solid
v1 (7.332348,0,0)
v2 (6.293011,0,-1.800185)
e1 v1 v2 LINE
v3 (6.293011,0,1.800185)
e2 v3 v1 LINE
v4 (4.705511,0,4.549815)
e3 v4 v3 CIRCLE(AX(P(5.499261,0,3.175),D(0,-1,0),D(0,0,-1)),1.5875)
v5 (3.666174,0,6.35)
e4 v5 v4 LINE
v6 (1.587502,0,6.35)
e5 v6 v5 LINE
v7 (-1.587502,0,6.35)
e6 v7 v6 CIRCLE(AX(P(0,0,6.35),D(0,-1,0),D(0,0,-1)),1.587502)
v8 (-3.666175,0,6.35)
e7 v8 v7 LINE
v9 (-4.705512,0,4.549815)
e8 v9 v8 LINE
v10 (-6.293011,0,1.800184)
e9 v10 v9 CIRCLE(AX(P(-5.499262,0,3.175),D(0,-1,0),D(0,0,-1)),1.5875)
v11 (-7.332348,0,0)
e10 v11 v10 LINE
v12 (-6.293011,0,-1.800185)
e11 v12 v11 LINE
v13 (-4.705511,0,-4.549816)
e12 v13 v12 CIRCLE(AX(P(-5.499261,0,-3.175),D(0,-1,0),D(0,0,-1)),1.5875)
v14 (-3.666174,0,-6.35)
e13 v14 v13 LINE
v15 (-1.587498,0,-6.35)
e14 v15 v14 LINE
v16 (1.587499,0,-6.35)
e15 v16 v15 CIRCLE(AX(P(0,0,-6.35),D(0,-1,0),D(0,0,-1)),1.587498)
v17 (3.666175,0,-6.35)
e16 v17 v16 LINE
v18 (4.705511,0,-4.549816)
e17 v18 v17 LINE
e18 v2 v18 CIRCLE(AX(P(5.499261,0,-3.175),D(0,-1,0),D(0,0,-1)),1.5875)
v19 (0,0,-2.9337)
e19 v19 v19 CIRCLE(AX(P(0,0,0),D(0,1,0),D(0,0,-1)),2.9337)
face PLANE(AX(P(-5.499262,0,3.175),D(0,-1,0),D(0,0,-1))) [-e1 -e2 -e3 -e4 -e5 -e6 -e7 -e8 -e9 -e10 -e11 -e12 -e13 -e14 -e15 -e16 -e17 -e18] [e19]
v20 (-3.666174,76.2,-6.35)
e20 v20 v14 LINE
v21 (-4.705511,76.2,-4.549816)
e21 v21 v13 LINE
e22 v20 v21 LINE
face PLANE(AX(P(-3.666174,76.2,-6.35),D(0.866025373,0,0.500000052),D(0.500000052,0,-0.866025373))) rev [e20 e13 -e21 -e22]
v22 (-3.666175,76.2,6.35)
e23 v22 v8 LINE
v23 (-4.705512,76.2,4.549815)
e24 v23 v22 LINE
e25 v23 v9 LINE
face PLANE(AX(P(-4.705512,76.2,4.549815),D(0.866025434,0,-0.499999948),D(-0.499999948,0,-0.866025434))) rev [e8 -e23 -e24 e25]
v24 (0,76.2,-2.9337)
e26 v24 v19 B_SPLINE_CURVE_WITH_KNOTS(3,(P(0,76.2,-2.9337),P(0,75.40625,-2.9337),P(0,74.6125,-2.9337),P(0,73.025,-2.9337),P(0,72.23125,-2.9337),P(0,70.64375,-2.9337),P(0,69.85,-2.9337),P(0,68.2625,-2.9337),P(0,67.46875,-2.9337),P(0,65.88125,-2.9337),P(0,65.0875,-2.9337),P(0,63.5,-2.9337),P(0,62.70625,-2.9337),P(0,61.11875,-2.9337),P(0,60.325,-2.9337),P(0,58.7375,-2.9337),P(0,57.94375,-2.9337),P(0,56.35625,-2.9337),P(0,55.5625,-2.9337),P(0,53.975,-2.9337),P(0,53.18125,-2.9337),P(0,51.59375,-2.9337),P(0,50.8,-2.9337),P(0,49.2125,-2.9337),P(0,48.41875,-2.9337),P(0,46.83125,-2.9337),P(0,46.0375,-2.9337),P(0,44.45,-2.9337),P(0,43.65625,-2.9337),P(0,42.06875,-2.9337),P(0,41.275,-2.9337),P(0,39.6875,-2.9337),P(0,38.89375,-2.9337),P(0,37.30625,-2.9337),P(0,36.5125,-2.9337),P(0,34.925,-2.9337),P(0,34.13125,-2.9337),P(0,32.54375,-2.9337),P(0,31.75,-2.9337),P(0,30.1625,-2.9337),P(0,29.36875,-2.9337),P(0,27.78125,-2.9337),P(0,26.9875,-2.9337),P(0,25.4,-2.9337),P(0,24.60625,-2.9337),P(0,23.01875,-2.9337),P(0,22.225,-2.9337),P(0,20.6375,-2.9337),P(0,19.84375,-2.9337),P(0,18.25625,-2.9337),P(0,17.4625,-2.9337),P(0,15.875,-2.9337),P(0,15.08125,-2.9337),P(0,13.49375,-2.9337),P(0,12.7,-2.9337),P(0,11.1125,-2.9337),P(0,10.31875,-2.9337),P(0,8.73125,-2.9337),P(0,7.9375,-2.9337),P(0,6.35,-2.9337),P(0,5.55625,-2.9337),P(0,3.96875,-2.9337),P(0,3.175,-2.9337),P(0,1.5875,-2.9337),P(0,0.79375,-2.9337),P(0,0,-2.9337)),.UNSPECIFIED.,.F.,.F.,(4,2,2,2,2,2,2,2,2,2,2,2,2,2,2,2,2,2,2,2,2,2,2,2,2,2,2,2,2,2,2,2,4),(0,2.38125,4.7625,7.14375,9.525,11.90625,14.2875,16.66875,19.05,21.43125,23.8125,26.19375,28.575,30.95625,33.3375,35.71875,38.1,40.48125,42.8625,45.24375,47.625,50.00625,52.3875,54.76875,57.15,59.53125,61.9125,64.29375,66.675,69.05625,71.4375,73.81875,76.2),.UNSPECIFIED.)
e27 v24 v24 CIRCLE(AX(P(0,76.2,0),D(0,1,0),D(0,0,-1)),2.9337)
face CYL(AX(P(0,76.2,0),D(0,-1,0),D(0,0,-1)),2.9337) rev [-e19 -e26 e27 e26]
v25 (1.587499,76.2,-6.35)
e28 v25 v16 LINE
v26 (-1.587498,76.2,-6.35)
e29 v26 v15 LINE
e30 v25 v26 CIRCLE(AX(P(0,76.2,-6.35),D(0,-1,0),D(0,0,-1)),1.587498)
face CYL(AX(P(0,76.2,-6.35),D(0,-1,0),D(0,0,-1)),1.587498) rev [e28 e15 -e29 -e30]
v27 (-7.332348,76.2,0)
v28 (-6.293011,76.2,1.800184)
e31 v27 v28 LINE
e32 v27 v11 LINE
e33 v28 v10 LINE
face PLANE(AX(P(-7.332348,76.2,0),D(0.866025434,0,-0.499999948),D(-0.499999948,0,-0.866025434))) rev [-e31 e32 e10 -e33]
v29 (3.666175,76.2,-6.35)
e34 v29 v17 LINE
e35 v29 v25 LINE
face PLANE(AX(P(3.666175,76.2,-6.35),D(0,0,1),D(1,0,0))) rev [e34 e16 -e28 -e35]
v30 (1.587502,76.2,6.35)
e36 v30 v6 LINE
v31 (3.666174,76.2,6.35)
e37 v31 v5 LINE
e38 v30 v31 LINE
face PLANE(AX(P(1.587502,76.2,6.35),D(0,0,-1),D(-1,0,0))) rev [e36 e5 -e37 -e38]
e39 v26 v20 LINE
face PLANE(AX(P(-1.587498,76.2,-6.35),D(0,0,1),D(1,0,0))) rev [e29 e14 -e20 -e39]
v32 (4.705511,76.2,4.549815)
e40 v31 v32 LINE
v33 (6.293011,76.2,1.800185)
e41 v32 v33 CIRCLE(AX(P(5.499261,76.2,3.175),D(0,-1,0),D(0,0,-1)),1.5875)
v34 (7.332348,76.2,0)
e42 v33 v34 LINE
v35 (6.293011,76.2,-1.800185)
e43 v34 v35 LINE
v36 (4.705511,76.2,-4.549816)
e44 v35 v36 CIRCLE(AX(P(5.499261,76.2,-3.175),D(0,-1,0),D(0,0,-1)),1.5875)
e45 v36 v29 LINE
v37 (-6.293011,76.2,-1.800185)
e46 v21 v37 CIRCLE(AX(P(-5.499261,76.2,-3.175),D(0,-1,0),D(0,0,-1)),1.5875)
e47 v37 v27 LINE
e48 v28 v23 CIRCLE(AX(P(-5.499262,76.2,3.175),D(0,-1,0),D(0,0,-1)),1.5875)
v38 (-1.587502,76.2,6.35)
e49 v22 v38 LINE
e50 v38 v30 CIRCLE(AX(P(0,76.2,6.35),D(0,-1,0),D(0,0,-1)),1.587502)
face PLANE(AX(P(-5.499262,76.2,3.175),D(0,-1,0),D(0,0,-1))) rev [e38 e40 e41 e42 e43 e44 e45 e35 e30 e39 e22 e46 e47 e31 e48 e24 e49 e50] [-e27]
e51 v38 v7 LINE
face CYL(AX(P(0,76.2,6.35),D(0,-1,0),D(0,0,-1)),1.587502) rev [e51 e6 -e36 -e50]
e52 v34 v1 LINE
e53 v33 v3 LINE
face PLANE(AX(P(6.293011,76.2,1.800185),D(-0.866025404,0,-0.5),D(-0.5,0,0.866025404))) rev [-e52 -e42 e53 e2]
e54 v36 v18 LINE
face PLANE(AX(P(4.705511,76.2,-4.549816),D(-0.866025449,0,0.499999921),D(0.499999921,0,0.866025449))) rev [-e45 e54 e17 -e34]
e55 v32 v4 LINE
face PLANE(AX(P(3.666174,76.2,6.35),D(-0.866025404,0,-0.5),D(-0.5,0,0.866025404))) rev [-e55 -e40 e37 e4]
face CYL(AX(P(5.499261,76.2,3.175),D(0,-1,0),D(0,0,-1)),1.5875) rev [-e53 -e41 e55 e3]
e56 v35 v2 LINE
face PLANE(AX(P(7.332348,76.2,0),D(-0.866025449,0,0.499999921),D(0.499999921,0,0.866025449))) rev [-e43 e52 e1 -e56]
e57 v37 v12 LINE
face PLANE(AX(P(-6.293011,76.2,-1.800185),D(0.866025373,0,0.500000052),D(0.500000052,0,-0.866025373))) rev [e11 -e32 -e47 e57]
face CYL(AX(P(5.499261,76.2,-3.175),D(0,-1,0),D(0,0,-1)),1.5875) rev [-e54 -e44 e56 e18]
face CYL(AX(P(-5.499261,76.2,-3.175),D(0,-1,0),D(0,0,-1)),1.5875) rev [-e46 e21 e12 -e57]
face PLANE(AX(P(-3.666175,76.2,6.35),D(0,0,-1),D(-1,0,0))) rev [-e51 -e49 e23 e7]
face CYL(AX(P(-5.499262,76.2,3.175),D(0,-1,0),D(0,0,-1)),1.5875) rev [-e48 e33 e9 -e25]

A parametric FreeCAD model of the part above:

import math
import FreeCAD as App
import Part
import Sketcher
from FreeCAD import Vector
Q = App.Units.Quantity

doc = App.newDocument("Part")
params = doc.addObject("Spreadsheet::Sheet", "Params")
for row, (alias, value) in enumerate([
    ("sketch1_diameter", "0.231 in"),
    ("sketch1_radius", "0.0625001 in"),
    ("pad1_length", "3 in"),
], start=1):
    params.set(f"A{row}", alias)
    params.set(f"B{row}", "=" + value)
    params.setAlias(f"B{row}", alias)

body = doc.addObject("PartDesign::Body", "Body")

# Sketch on XZ plane
sketch1 = body.newObject("Sketcher::SketchObject", "Sketch")
sketch1.AttachmentSupport = (doc.getObject("XZ_Plane"), [""])
sketch1.MapMode = "FlatFace"
sketch1.addGeometry(Part.LineSegment(Vector(-4.7, 4.5, 0), Vector(-3.7, 6.3, 0)), False)
sketch1.addGeometry(Part.LineSegment(Vector(-3.7, 6.3, 0), Vector(-1.6, 6.3, 0)), False)
sketch1.addGeometry(Part.ArcOfCircle(Part.Circle(Vector(0, 6.4, 0), Vector(0, 0, 1), 1.6), math.radians(-180), math.radians(0)), False)
sketch1.addGeometry(Part.LineSegment(Vector(1.6, 6.3, 0), Vector(3.7, 6.3, 0)), False)
sketch1.addGeometry(Part.LineSegment(Vector(3.7, 6.3, 0), Vector(4.7, 4.5, 0)), False)
sketch1.addGeometry(Part.ArcOfCircle(Part.Circle(Vector(5.5, 3.2, 0), Vector(0, 0, 1), 1.6), math.radians(120), math.radians(300)), False)
sketch1.addGeometry(Part.LineSegment(Vector(6.3, 1.8, 0), Vector(7.3, 0, 0)), False)
sketch1.addGeometry(Part.LineSegment(Vector(7.3, 0, 0), Vector(6.3, -1.8, 0)), False)
sketch1.addGeometry(Part.ArcOfCircle(Part.Circle(Vector(5.5, -3.2, 0), Vector(0, 0, 1), 1.6), math.radians(60), math.radians(240)), False)
sketch1.addGeometry(Part.LineSegment(Vector(4.7, -4.5, 0), Vector(3.7, -6.4, 0)), False)
sketch1.addGeometry(Part.LineSegment(Vector(3.7, -6.4, 0), Vector(1.6, -6.4, 0)), False)
sketch1.addGeometry(Part.ArcOfCircle(Part.Circle(Vector(0, -6.4, 0), Vector(0, 0, 1), 1.6), math.radians(0), math.radians(180)), False)
sketch1.addGeometry(Part.LineSegment(Vector(-1.6, -6.4, 0), Vector(-3.7, -6.4, 0)), False)
sketch1.addGeometry(Part.LineSegment(Vector(-3.7, -6.4, 0), Vector(-4.7, -4.5, 0)), False)
sketch1.addGeometry(Part.ArcOfCircle(Part.Circle(Vector(-5.5, -3.2, 0), Vector(0, 0, 1), 1.6), math.radians(-60), math.radians(120)), False)
sketch1.addGeometry(Part.LineSegment(Vector(-6.3, -1.8, 0), Vector(-7.3, 0, 0)), False)
sketch1.addGeometry(Part.LineSegment(Vector(-7.3, 0, 0), Vector(-6.3, 1.8, 0)), False)
sketch1.addGeometry(Part.ArcOfCircle(Part.Circle(Vector(-5.5, 3.2, 0), Vector(0, 0, 1), 1.6), math.radians(-120), math.radians(60)), False)
sketch1.addGeometry(Part.Circle(Vector(0, 0, 0), Vector(0, 0, 1), 2.9), False)
sketch1.addConstraint(Sketcher.Constraint("Coincident", 0, 2, 1, 1))
sketch1.addConstraint(Sketcher.Constraint("Coincident", 1, 2, 2, 1))
sketch1.addConstraint(Sketcher.Constraint("Coincident", 2, 2, 3, 1))
sketch1.addConstraint(Sketcher.Constraint("Coincident", 3, 2, 4, 1))
sketch1.addConstraint(Sketcher.Constraint("Coincident", 4, 2, 5, 1))
sketch1.addConstraint(Sketcher.Constraint("Coincident", 5, 2, 6, 1))
sketch1.addConstraint(Sketcher.Constraint("Coincident", 6, 2, 7, 1))
sketch1.addConstraint(Sketcher.Constraint("Coincident", 7, 2, 8, 1))
sketch1.addConstraint(Sketcher.Constraint("Coincident", 8, 2, 9, 1))
sketch1.addConstraint(Sketcher.Constraint("Coincident", 9, 2, 10, 1))
sketch1.addConstraint(Sketcher.Constraint("Coincident", 10, 2, 11, 1))
sketch1.addConstraint(Sketcher.Constraint("Coincident", 11, 2, 12, 1))
sketch1.addConstraint(Sketcher.Constraint("Coincident", 12, 2, 13, 1))
sketch1.addConstraint(Sketcher.Constraint("Coincident", 13, 2, 14, 1))
sketch1.addConstraint(Sketcher.Constraint("Coincident", 14, 2, 15, 1))
sketch1.addConstraint(Sketcher.Constraint("Coincident", 15, 2, 16, 1))
sketch1.addConstraint(Sketcher.Constraint("Coincident", 16, 2, 17, 1))
sketch1.addConstraint(Sketcher.Constraint("Coincident", 17, 2, 0, 1))
sketch1.addConstraint(Sketcher.Constraint("Horizontal", 1))
sketch1.addConstraint(Sketcher.Constraint("Horizontal", 3))
sketch1.addConstraint(Sketcher.Constraint("Horizontal", 10))
sketch1.addConstraint(Sketcher.Constraint("Horizontal", 12))
sketch1.addConstraint(Sketcher.Constraint("Coincident", 18, 3, -1, 1))
sketch1.addConstraint(Sketcher.Constraint("Equal", 2, 5))
sketch1.addConstraint(Sketcher.Constraint("Equal", 5, 8))
sketch1.addConstraint(Sketcher.Constraint("Equal", 8, 11))
sketch1.addConstraint(Sketcher.Constraint("Equal", 11, 14))
sketch1.addConstraint(Sketcher.Constraint("Equal", 14, 17))
sketch1.addConstraint(Sketcher.Constraint("Symmetric", 2, 3, 11, 3, -1, 1))
sketch1.addConstraint(Sketcher.Constraint("Symmetric", 5, 3, 14, 3, -1, 1))
sketch1.addConstraint(Sketcher.Constraint("Symmetric", 8, 3, 17, 3, -1, 1))
sketch1.addConstraint(Sketcher.Constraint("Symmetric", 0, 2, 9, 2, -1, 1))
sketch1.addConstraint(Sketcher.Constraint("Symmetric", 3, 2, 12, 2, -1, 1))
sketch1.addConstraint(Sketcher.Constraint("Symmetric", 6, 2, 15, 2, -1, 1))
sketch1.addConstraint(Sketcher.Constraint("Symmetric", 8, 3, 14, 3, -2))
sketch1.addConstraint(Sketcher.Constraint("Symmetric", 1, 2, 2, 2, -2))
sketch1.addConstraint(Sketcher.Constraint("PointOnObject", 6, 2, -1))
sketch1.addConstraint(Sketcher.Constraint("Parallel", 4, 6))
sketch1.addConstraint(Sketcher.Constraint("Parallel", 0, 7))
sketch1.addConstraint(Sketcher.Constraint("Parallel", 7, 9))
sketch1.addConstraint(Sketcher.Constraint("Parallel", 6, 13))
sketch1.addConstraint(Sketcher.Constraint("Parallel", 13, 15))
sketch1.addConstraint(Sketcher.Constraint("Parallel", 9, 16))
sketch1.addConstraint(Sketcher.Constraint("Horizontal", 2, 3, 0, 2))
sketch1.addConstraint(Sketcher.Constraint("Horizontal", 8, 2, 13, 2))
sketch1.addConstraint(Sketcher.Constraint("Horizontal", 7, 2, 14, 2))
sketch1.addConstraint(Sketcher.Constraint("Equal", 4, 6))
sketch1.addConstraint(Sketcher.Constraint("Diameter", 18, Q("0.231 in")))
sketch1.addConstraint(Sketcher.Constraint("Angle", 0, Q("60.000003 deg")))
sketch1.addConstraint(Sketcher.Constraint("Radius", 2, Q("0.0625001 in")))
sketch1.addConstraint(Sketcher.Constraint("DistanceY", 11, 3, 2, 3, Q("0.5 in")))
sketch1.addConstraint(Sketcher.Constraint("DistanceY", 8, 3, 5, 3, Q("0.25 in")))
sketch1.addConstraint(Sketcher.Constraint("DistanceX", 4, 2, 5, 3, Q("0.03125 in")))
sketch1.addConstraint(Sketcher.Constraint("DistanceX", 1, 1, 1, 2, Q("2.078673 mm")))
sketch1.setExpression("Constraints[47]", "Params.sketch1_diameter")
sketch1.setExpression("Constraints[49]", "Params.sketch1_radius")
pad1 = body.newObject("PartDesign::Pad", "Pad")
pad1.Profile = sketch1
pad1.setExpression("Length", "Params.pad1_length")
pad1.Reversed = True

doc.recompute()
